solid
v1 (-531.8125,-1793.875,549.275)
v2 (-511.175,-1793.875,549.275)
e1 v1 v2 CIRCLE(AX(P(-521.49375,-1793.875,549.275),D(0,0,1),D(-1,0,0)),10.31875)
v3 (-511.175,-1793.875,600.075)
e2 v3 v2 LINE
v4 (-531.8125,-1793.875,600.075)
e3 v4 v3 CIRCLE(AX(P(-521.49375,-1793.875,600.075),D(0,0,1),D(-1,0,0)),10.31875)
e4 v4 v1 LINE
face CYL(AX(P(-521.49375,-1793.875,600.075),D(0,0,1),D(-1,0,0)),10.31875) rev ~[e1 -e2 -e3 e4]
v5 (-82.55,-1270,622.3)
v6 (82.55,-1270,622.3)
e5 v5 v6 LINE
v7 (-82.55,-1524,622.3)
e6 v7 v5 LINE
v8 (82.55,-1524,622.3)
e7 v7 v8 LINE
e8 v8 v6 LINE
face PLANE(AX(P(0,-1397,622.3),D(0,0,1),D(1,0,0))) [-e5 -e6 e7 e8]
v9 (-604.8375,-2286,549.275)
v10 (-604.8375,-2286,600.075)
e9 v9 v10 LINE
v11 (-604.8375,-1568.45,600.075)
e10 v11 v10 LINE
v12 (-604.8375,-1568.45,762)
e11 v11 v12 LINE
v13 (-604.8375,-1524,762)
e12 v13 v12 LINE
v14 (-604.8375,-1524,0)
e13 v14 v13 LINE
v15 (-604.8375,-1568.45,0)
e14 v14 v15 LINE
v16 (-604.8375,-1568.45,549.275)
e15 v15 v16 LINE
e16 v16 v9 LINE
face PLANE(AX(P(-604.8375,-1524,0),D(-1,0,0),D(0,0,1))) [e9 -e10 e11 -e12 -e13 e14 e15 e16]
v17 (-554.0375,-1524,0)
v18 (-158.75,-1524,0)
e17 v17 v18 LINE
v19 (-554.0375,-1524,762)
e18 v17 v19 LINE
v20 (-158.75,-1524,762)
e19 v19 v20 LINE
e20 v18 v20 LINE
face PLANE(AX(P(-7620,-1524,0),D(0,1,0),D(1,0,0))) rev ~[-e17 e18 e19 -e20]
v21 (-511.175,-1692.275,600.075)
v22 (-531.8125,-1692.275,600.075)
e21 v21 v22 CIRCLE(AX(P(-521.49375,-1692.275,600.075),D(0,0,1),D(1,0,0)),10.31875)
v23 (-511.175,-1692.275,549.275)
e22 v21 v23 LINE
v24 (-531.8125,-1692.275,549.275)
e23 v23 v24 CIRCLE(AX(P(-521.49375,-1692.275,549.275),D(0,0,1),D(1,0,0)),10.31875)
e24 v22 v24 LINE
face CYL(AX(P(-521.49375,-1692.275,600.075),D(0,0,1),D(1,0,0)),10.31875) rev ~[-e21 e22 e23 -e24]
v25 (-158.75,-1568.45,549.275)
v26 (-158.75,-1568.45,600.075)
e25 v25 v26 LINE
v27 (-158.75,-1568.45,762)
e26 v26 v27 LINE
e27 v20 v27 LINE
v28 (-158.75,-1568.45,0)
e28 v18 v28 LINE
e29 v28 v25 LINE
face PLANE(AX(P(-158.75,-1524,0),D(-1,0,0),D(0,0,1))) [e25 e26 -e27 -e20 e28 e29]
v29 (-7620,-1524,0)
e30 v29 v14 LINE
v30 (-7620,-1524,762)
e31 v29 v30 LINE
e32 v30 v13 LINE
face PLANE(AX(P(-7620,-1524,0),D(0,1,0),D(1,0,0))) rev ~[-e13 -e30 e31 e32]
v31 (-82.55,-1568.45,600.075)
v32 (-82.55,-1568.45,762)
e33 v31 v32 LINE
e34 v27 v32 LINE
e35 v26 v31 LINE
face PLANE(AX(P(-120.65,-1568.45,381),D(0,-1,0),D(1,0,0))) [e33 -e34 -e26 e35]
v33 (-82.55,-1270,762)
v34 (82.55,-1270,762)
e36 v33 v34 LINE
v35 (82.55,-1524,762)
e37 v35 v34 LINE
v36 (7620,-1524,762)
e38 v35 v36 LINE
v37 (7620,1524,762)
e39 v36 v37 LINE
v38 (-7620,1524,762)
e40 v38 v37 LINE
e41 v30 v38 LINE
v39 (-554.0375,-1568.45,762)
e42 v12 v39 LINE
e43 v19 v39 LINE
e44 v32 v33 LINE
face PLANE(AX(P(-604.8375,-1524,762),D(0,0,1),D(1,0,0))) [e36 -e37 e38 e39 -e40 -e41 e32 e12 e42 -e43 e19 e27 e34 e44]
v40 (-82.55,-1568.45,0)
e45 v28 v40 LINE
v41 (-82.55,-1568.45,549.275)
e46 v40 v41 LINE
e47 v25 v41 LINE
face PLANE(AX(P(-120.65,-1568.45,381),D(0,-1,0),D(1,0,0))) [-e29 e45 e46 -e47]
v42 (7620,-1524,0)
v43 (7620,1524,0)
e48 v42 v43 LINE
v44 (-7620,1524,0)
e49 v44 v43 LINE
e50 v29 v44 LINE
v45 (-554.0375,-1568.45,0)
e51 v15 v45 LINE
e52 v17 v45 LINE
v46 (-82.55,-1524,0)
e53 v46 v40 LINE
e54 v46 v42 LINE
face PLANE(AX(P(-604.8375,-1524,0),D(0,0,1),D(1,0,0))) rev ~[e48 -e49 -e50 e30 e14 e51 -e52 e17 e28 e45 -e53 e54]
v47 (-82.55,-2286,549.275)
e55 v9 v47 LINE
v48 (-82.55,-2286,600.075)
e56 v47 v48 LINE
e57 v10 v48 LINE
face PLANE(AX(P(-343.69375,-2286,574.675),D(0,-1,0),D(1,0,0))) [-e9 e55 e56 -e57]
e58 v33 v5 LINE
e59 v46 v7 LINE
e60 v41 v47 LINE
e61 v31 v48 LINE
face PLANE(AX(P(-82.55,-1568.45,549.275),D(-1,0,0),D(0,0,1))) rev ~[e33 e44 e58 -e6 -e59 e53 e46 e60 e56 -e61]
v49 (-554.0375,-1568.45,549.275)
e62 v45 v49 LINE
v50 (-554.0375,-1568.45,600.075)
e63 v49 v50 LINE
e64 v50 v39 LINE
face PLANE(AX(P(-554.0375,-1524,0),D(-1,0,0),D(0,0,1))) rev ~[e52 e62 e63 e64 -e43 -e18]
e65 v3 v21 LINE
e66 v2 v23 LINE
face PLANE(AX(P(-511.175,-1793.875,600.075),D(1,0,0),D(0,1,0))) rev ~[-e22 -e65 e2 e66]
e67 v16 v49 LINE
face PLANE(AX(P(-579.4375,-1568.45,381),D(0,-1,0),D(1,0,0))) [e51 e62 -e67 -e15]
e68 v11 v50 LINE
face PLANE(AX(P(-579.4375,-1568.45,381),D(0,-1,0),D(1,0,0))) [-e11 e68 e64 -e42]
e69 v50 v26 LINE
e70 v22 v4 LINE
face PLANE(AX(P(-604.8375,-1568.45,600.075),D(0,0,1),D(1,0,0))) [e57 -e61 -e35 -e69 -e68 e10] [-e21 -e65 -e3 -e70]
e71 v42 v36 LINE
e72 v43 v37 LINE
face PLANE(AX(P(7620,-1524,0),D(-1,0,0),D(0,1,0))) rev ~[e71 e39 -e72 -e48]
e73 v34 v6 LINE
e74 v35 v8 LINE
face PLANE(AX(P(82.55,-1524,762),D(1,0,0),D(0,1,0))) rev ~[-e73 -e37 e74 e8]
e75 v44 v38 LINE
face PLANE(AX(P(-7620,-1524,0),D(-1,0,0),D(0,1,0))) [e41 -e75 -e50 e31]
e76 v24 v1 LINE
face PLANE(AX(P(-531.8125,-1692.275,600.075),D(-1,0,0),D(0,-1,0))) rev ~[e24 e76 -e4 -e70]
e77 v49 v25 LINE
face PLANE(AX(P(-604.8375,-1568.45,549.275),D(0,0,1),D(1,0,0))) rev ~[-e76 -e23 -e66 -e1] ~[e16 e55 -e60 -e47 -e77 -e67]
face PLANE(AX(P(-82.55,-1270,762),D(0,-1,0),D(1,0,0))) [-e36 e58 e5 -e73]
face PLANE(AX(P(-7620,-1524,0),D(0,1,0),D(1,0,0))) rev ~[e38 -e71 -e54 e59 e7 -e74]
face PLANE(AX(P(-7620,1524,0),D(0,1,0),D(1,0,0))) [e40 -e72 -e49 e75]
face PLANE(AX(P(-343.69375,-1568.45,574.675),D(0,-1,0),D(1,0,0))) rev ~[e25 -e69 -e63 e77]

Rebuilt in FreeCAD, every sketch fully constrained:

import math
import FreeCAD as App
import Part
import Sketcher

V = App.Vector
Q = App.Units.Quantity

doc = App.newDocument("Part")
body = doc.addObject("PartDesign::Body", "Body")

# Sketch on XY plane
sketch1 = body.newObject("Sketcher::SketchObject", "Sketch")
sketch1.AttachmentSupport = (doc.getObject("XY_Plane"), [""])
sketch1.MapMode = "FlatFace"
sketch1.addGeometry([
    Part.LineSegment(V(-7620, 1524, 0), V(-7620, -1524, 0)),
    Part.LineSegment(V(-7620, -1524, 0), V(7620, -1524, 0)),
    Part.LineSegment(V(7620, -1524, 0), V(7620, 1524, 0)),
    Part.LineSegment(V(7620, 1524, 0), V(-7620, 1524, 0)),
], False)
sketch1.addConstraint([
    Sketcher.Constraint("Coincident", 0, 2, 1, 1),
    Sketcher.Constraint("Coincident", 1, 2, 2, 1),
    Sketcher.Constraint("Coincident", 2, 2, 3, 1),
    Sketcher.Constraint("Coincident", 3, 2, 0, 1),
    Sketcher.Constraint("Vertical", 0),
    Sketcher.Constraint("Horizontal", 1),
    Sketcher.Constraint("Vertical", 2),
    Sketcher.Constraint("Horizontal", 3),
    Sketcher.Constraint("Symmetric", 0, 2, 2, 2, -1, 1),
    Sketcher.Constraint("DistanceX", 1, 1, 1, 2, Q("600 in")),
    Sketcher.Constraint("DistanceY", 0, 2, 0, 1, Q("120 in")),
])
pad1 = body.newObject("PartDesign::Pad", "Pad")
pad1.Profile = sketch1
pad1.Length = Q("30 in")

# Sketch on XY plane
sketch2 = body.newObject("Sketcher::SketchObject", "Sketch001")
sketch2.AttachmentSupport = (doc.getObject("XY_Plane"), [""])
sketch2.MapMode = "FlatFace"
sketch2.AttachmentOffset = App.Placement(V(0, 0, 30 * 25.4), App.Rotation())
sketch2.addGeometry([
    Part.LineSegment(V(-83, -1270, 0), V(-83, -1524, 0)),
    Part.LineSegment(V(-83, -1524, 0), V(83, -1524, 0)),
    Part.LineSegment(V(83, -1524, 0), V(83, -1270, 0)),
    Part.LineSegment(V(83, -1270, 0), V(-83, -1270, 0)),
], False)
sketch2.addConstraint([
    Sketcher.Constraint("Coincident", 0, 2, 1, 1),
    Sketcher.Constraint("Coincident", 1, 2, 2, 1),
    Sketcher.Constraint("Coincident", 2, 2, 3, 1),
    Sketcher.Constraint("Coincident", 3, 2, 0, 1),
    Sketcher.Constraint("Vertical", 0),
    Sketcher.Constraint("Horizontal", 1),
    Sketcher.Constraint("Vertical", 2),
    Sketcher.Constraint("Horizontal", 3),
    Sketcher.Constraint("DistanceY", 0, 2, 0, 1, Q("10 in")),
    Sketcher.Constraint("DistanceX", 1, 1, 1, 2, Q("6.5 in")),
    Sketcher.Constraint("DistanceY", 0, 2, -1, 1, Q("60 in")),
    Sketcher.Constraint("DistanceX", 0, 2, -1, 1, Q("3.25 in")),
])
pocket1 = body.newObject("PartDesign::Pocket", "Pocket")
pocket1.Profile = sketch2
pocket1.Length = Q("5.5 in")

# Sketch on XZ plane
sketch3 = body.newObject("Sketcher::SketchObject", "Sketch002")
sketch3.AttachmentSupport = (doc.getObject("XZ_Plane"), [""])
sketch3.MapMode = "FlatFace"
sketch3.AttachmentOffset = App.Placement(V(0, 0, 60 * 25.4), App.Rotation())
sketch3.addGeometry([
    Part.LineSegment(V(-159, 762, 0), V(-159, 0, 0)),
    Part.LineSegment(V(-159, 0, 0), V(-83, 0, 0)),
    Part.LineSegment(V(-83, 0, 0), V(-83, 762, 0)),
    Part.LineSegment(V(-83, 762, 0), V(-159, 762, 0)),
], False)
sketch3.addConstraint([
    Sketcher.Constraint("Coincident", 0, 2, 1, 1),
    Sketcher.Constraint("Coincident", 1, 2, 2, 1),
    Sketcher.Constraint("Coincident", 2, 2, 3, 1),
    Sketcher.Constraint("Coincident", 3, 2, 0, 1),
    Sketcher.Constraint("Vertical", 0),
    Sketcher.Constraint("Horizontal", 1),
    Sketcher.Constraint("Vertical", 2),
    Sketcher.Constraint("Horizontal", 3),
    Sketcher.Constraint("PointOnObject", 0, 2, -1),
    Sketcher.Constraint("DistanceX", 1, 1, 1, 2, Q("3 in")),
    Sketcher.Constraint("DistanceY", 0, 2, 0, 1, Q("30 in")),
    Sketcher.Constraint("DistanceX", 0, 2, -1, 1, Q("6.25 in")),
])
pad2 = body.newObject("PartDesign::Pad", "Pad001")
pad2.Profile = sketch3
pad2.Length = Q("1.75 in")

# Sketch on XZ plane
sketch4 = body.newObject("Sketcher::SketchObject", "Sketch003")
sketch4.AttachmentSupport = (doc.getObject("XZ_Plane"), [""])
sketch4.MapMode = "FlatFace"
sketch4.AttachmentOffset = App.Placement(V(0, 0, 61.75 * 25.4), App.Rotation())
sketch4.addGeometry([
    Part.LineSegment(V(-605, 600, 0), V(-605, 549, 0)),
    Part.LineSegment(V(-605, 549, 0), V(-83, 549, 0)),
    Part.LineSegment(V(-83, 549, 0), V(-83, 600, 0)),
    Part.LineSegment(V(-83, 600, 0), V(-605, 600, 0)),
], False)
sketch4.addConstraint([
    Sketcher.Constraint("Coincident", 0, 2, 1, 1),
    Sketcher.Constraint("Coincident", 1, 2, 2, 1),
    Sketcher.Constraint("Coincident", 2, 2, 3, 1),
    Sketcher.Constraint("Coincident", 3, 2, 0, 1),
    Sketcher.Constraint("Vertical", 0),
    Sketcher.Constraint("Horizontal", 1),
    Sketcher.Constraint("Vertical", 2),
    Sketcher.Constraint("Horizontal", 3),
    Sketcher.Constraint("DistanceY", 0, 2, 0, 1, Q("2 in")),
    Sketcher.Constraint("DistanceX", 1, 1, 1, 2, Q("20.5625 in")),
    Sketcher.Constraint("DistanceX", 1, 2, -1, 1, Q("3.25 in")),
    Sketcher.Constraint("DistanceY", -1, 1, 0, 2, Q("21.625 in")),
])
pad3 = body.newObject("PartDesign::Pad", "Pad002")
pad3.Profile = sketch4
pad3.Length = Q("28.25 in")

# Sketch on XZ plane
sketch5 = body.newObject("Sketcher::SketchObject", "Sketch004")
sketch5.AttachmentSupport = (doc.getObject("XZ_Plane"), [""])
sketch5.MapMode = "FlatFace"
sketch5.AttachmentOffset = App.Placement(V(0, 0, 60 * 25.4), App.Rotation())
sketch5.addGeometry([
    Part.LineSegment(V(-605, 762, 0), V(-605, 0, 0)),
    Part.LineSegment(V(-605, 0, 0), V(-554, 0, 0)),
    Part.LineSegment(V(-554, 0, 0), V(-554, 762, 0)),
    Part.LineSegment(V(-554, 762, 0), V(-605, 762, 0)),
], False)
sketch5.addConstraint([
    Sketcher.Constraint("Coincident", 0, 2, 1, 1),
    Sketcher.Constraint("Coincident", 1, 2, 2, 1),
    Sketcher.Constraint("Coincident", 2, 2, 3, 1),
    Sketcher.Constraint("Coincident", 3, 2, 0, 1),
    Sketcher.Constraint("Vertical", 0),
    Sketcher.Constraint("Horizontal", 1),
    Sketcher.Constraint("Vertical", 2),
    Sketcher.Constraint("Horizontal", 3),
    Sketcher.Constraint("PointOnObject", 0, 2, -1),
    Sketcher.Constraint("DistanceX", 1, 1, 1, 2, Q("2 in")),
    Sketcher.Constraint("DistanceY", 0, 2, 0, 1, Q("30 in")),
    Sketcher.Constraint("DistanceX", 0, 2, -1, 1, Q("23.8125 in")),
])
pad4 = body.newObject("PartDesign::Pad", "Pad003")
pad4.Profile = sketch5
pad4.Length = Q("1.75 in")

# Sketch on XY plane
sketch6 = body.newObject("Sketcher::SketchObject", "Sketch005")
sketch6.AttachmentSupport = (doc.getObject("XY_Plane"), [""])
sketch6.MapMode = "FlatFace"
sketch6.AttachmentOffset = App.Placement(V(0, 0, 23.625 * 25.4), App.Rotation())
sketch6.addGeometry([
    Part.ArcOfCircle(Part.Circle(V(-521, -1692, 0), V(0, 0, 1), 10), math.radians(0), math.radians(180)),
    Part.LineSegment(V(-532, -1692, 0), V(-532, -1794, 0)),
    Part.ArcOfCircle(Part.Circle(V(-521, -1794, 0), V(0, 0, 1), 10), math.radians(180), math.radians(360)),
    Part.LineSegment(V(-511, -1794, 0), V(-511, -1692, 0)),
], False)
sketch6.addConstraint([
    Sketcher.Constraint("Tangent", 0, 2, 1, 1),
    Sketcher.Constraint("Tangent", 1, 2, 2, 1),
    Sketcher.Constraint("Tangent", 2, 2, 3, 1),
    Sketcher.Constraint("Tangent", 3, 2, 0, 1),
    Sketcher.Constraint("Vertical", 1),
    Sketcher.Constraint("Vertical", 3),
    Sketcher.Constraint("DistanceY", 1, 2, 1, 1, Q("4 in")),
    Sketcher.Constraint("Radius", 0, Q("0.40625 in")),
    Sketcher.Constraint("DistanceX", 0, 3, -1, 1, Q("20.53125 in")),
    Sketcher.Constraint("DistanceY", 0, 3, -1, 1, Q("66.625 in")),
])
pocket2 = body.newObject("PartDesign::Pocket", "Pocket001")
pocket2.Profile = sketch6
pocket2.Type = "ThroughAll"

doc.recompute()
